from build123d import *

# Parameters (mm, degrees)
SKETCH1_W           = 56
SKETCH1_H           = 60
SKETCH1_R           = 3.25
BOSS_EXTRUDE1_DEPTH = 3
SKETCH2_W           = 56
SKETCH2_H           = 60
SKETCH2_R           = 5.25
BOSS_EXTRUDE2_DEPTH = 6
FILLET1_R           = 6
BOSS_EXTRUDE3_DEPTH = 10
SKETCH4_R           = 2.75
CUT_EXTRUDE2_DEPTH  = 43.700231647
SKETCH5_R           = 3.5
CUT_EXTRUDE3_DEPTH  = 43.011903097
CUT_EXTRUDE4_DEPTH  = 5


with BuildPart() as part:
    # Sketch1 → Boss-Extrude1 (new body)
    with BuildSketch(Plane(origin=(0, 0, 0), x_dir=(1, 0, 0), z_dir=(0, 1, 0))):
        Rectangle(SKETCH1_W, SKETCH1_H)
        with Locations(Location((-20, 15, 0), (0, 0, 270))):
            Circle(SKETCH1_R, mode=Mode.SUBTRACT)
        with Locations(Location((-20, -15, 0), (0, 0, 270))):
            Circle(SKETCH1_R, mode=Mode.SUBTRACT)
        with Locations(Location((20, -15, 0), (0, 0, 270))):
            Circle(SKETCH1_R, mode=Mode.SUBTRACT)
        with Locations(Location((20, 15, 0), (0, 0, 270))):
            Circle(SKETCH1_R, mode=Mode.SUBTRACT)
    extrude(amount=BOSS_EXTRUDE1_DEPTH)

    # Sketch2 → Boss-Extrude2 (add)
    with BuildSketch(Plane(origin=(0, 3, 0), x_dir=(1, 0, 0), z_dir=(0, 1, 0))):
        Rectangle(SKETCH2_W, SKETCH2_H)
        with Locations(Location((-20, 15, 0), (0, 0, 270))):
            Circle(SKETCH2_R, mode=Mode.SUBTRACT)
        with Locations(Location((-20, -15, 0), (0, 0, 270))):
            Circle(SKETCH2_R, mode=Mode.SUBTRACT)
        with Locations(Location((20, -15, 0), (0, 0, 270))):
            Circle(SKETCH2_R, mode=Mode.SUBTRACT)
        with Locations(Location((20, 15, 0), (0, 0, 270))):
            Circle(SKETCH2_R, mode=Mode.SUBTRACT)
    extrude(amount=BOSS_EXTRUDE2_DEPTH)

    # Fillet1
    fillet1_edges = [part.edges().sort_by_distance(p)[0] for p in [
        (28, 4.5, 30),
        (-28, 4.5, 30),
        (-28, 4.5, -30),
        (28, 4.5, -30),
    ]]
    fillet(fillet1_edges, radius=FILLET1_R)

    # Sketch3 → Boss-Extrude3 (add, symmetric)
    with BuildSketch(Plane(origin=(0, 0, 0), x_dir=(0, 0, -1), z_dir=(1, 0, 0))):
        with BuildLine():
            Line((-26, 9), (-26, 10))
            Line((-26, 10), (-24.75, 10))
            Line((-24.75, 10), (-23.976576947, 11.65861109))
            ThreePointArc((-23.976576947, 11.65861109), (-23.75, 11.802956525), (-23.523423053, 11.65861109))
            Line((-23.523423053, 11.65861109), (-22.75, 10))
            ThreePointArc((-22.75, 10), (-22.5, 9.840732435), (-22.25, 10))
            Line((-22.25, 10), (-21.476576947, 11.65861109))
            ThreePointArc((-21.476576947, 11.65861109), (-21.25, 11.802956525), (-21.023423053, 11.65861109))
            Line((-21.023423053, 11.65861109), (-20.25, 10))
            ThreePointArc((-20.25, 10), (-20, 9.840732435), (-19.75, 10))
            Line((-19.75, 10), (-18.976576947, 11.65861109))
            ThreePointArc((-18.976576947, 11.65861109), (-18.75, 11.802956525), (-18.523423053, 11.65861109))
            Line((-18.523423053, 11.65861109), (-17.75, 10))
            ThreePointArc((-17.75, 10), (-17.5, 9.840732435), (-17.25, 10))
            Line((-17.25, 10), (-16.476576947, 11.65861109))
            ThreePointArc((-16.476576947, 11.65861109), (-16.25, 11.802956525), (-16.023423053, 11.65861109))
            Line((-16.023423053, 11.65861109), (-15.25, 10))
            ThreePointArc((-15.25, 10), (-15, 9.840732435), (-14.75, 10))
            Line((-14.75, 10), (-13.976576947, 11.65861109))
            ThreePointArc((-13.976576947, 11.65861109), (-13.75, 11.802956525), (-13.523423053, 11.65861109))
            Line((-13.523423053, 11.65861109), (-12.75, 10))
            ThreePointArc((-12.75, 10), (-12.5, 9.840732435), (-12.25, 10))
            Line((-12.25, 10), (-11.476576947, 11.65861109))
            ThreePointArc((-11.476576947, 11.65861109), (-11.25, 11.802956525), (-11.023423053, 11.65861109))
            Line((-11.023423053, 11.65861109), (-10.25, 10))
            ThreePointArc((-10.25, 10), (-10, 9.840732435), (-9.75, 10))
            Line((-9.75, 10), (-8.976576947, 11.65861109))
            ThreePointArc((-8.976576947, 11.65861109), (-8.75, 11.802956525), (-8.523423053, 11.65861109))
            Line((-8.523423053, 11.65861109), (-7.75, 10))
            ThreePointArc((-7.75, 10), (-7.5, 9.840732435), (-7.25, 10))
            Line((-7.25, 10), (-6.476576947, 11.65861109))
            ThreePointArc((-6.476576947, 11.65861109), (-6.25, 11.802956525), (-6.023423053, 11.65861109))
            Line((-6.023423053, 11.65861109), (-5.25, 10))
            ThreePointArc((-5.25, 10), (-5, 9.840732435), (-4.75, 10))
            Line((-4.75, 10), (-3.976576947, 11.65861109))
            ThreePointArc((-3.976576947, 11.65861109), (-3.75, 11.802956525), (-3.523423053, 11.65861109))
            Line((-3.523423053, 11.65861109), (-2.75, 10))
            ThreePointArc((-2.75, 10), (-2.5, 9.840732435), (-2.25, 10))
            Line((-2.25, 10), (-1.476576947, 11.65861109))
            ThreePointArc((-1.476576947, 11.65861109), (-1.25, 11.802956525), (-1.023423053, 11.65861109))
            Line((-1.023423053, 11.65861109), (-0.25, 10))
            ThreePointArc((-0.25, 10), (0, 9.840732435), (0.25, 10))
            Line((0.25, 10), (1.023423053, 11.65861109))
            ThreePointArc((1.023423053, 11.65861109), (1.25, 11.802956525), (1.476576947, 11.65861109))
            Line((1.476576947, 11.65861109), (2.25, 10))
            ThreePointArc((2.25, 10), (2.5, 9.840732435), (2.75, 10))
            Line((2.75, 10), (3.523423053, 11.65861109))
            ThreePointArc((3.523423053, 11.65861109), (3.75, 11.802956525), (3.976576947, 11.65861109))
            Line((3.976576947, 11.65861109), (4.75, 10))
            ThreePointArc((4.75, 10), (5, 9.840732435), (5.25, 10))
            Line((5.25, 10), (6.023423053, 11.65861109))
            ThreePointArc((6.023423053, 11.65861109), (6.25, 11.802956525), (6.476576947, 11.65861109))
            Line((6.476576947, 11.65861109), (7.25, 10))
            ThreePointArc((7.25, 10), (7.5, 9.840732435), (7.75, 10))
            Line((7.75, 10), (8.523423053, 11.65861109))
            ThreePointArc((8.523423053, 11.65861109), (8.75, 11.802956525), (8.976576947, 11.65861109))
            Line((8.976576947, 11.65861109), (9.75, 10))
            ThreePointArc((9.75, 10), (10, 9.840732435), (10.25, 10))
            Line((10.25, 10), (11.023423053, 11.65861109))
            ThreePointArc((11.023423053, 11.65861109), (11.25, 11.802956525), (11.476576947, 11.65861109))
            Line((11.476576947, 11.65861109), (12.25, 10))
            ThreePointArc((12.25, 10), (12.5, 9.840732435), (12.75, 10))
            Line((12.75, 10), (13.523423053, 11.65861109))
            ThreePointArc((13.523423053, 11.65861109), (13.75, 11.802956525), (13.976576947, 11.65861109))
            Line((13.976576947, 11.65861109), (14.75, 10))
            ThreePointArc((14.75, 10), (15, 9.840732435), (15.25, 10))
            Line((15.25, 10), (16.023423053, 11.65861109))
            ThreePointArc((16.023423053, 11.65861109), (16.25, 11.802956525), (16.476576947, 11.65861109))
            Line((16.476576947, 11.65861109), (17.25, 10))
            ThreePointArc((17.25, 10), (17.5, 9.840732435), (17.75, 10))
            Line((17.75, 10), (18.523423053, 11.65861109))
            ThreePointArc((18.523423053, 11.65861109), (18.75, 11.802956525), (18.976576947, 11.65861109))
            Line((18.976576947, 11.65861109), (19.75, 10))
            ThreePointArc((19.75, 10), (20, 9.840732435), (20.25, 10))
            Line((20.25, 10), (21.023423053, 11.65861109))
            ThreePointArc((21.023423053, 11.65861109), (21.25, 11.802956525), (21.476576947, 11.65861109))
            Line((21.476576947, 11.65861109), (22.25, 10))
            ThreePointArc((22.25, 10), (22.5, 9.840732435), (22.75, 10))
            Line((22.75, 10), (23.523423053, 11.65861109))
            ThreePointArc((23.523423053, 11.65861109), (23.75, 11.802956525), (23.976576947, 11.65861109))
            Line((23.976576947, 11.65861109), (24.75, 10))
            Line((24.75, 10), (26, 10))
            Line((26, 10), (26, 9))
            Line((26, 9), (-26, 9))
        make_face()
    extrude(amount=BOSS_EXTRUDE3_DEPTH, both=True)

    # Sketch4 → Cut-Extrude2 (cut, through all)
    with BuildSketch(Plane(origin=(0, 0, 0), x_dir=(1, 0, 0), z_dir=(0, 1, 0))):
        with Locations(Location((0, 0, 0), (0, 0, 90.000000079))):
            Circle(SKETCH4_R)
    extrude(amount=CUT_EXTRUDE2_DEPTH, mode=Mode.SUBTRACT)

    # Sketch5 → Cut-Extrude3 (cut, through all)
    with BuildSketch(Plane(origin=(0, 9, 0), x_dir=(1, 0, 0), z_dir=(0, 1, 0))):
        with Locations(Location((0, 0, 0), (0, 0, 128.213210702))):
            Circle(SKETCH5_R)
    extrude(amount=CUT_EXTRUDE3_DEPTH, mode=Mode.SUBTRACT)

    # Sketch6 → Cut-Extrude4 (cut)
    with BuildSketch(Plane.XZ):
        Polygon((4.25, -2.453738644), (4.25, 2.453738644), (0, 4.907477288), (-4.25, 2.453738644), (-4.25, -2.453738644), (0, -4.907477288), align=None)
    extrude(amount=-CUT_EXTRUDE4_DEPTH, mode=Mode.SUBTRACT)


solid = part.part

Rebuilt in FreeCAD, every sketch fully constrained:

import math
import FreeCAD as App
import Part
import Sketcher
Q = App.Units.Quantity


def edges_at(feature, points):
    """Names of the edges that pass closest to the given points."""
    edges = feature.Shape.Edges
    near = lambda p: min(range(len(edges)), key=lambda i: edges[i].distToShape(Part.Vertex(*p))[0])
    return sorted({f"Edge{near(p) + 1}" for p in points})

doc = App.newDocument("Part")
params = doc.addObject("Spreadsheet::Sheet", "Params")
for row, (alias, value) in enumerate([
    ("sketch1_diameter", "6.5 mm"),
    ("sketch1_width", "56 mm"),
    ("sketch1_height", "60 mm"),
    ("pad1_length", "3 mm"),
    ("sketch2_diameter", "10.5 mm"),
    ("sketch2_width", "56 mm"),
    ("sketch2_height", "60 mm"),
    ("pad2_length", "6 mm"),
    ("fillet_radius", "6 mm"),
    ("sketch3_width", "1 mm"),
    ("sketch3_height", "52 mm"),
    ("sketch3_radius", "0.25 mm"),
    ("sketch3_height2", "1.25 mm"),
    ("pad3_length", "20 mm"),
    ("sketch4_diameter", "5.5 mm"),
    ("sketch5_diameter", "7 mm"),
    ("pocket3_length", "5 mm"),
], start=1):
    params.set(f"A{row}", alias)
    params.set(f"B{row}", "=" + value)
    params.setAlias(f"B{row}", alias)

body = doc.addObject("PartDesign::Body", "Body")

# Sketch on XZ plane
sketch1 = body.newObject("Sketcher::SketchObject", "Sketch")
sketch1.AttachmentSupport = (doc.getObject("XZ_Plane"), [""])
sketch1.MapMode = "FlatFace"
sketch1.addGeometry([
    Part.LineSegment(App.Vector(-28, -30, 0), App.Vector(-28, 30, 0)),  # 0
    Part.LineSegment(App.Vector(-28, 30, 0), App.Vector(28, 30, 0)),  # 1
    Part.LineSegment(App.Vector(28, 30, 0), App.Vector(28, -30, 0)),  # 2
    Part.LineSegment(App.Vector(28, -30, 0), App.Vector(-28, -30, 0)),  # 3
    Part.Circle(App.Vector(-20, 15, 0), App.Vector(0, 0, 1), 3.2),  # 4
    Part.Circle(App.Vector(20, 15, 0), App.Vector(0, 0, 1), 3.2),  # 5
    Part.Circle(App.Vector(-20, -15, 0), App.Vector(0, 0, 1), 3.2),  # 6
    Part.Circle(App.Vector(20, -15, 0), App.Vector(0, 0, 1), 3.2),  # 7
], False)
sketch1.addConstraint([
    Sketcher.Constraint("Coincident", 0, 2, 1, 1),
    Sketcher.Constraint("Coincident", 1, 2, 2, 1),
    Sketcher.Constraint("Coincident", 2, 2, 3, 1),
    Sketcher.Constraint("Coincident", 3, 2, 0, 1),
    Sketcher.Constraint("Vertical", 0),
    Sketcher.Constraint("Horizontal", 1),
    Sketcher.Constraint("Vertical", 2),
    Sketcher.Constraint("Horizontal", 3),
    Sketcher.Constraint("Equal", 4, 5),
    Sketcher.Constraint("Equal", 5, 6),
    Sketcher.Constraint("Equal", 6, 7),
    Sketcher.Constraint("Symmetric", 5, 3, 6, 3, -1, 1),
    Sketcher.Constraint("Symmetric", 4, 3, 7, 3, -1, 1),
    Sketcher.Constraint("Symmetric", 0, 2, 2, 2, -1, 1),
    Sketcher.Constraint("Symmetric", 4, 3, 5, 3, -2),
    Sketcher.Constraint("Diameter", 4, 6.5),
    Sketcher.Constraint("DistanceX", 1, 1, 1, 2, 56.0),
    Sketcher.Constraint("DistanceY", 0, 1, 0, 2, 60.0),
    Sketcher.Constraint("DistanceX", 4, 3, -1, 1, 20.0),
    Sketcher.Constraint("DistanceY", -1, 1, 4, 3, 15.0),
])
sketch1.setExpression("Constraints[15]", "Params.sketch1_diameter")
sketch1.setExpression("Constraints[16]", "Params.sketch1_width")
sketch1.setExpression("Constraints[17]", "Params.sketch1_height")
pad1 = body.newObject("PartDesign::Pad", "Pad")
pad1.Profile = sketch1
pad1.setExpression("Length", "Params.pad1_length")
pad1.Reversed = True

# Sketch on XZ plane
sketch2 = body.newObject("Sketcher::SketchObject", "Sketch001")
sketch2.AttachmentSupport = (doc.getObject("XZ_Plane"), [""])
sketch2.MapMode = "FlatFace"
sketch2.AttachmentOffset = App.Placement(App.Vector(0, 0, -3), App.Rotation())
sketch2.addGeometry([
    Part.LineSegment(App.Vector(-28, -30, 0), App.Vector(-28, 30, 0)),  # 0
    Part.LineSegment(App.Vector(-28, 30, 0), App.Vector(28, 30, 0)),  # 1
    Part.LineSegment(App.Vector(28, 30, 0), App.Vector(28, -30, 0)),  # 2
    Part.LineSegment(App.Vector(28, -30, 0), App.Vector(-28, -30, 0)),  # 3
    Part.Circle(App.Vector(-20, 15, 0), App.Vector(0, 0, 1), 5),  # 4
    Part.Circle(App.Vector(20, 15, 0), App.Vector(0, 0, 1), 5),  # 5
    Part.Circle(App.Vector(-20, -15, 0), App.Vector(0, 0, 1), 5),  # 6
    Part.Circle(App.Vector(20, -15, 0), App.Vector(0, 0, 1), 5),  # 7
], False)
sketch2.addConstraint([
    Sketcher.Constraint("Coincident", 0, 2, 1, 1),
    Sketcher.Constraint("Coincident", 1, 2, 2, 1),
    Sketcher.Constraint("Coincident", 2, 2, 3, 1),
    Sketcher.Constraint("Coincident", 3, 2, 0, 1),
    Sketcher.Constraint("Vertical", 0),
    Sketcher.Constraint("Horizontal", 1),
    Sketcher.Constraint("Vertical", 2),
    Sketcher.Constraint("Horizontal", 3),
    Sketcher.Constraint("Equal", 4, 5),
    Sketcher.Constraint("Equal", 5, 6),
    Sketcher.Constraint("Equal", 6, 7),
    Sketcher.Constraint("Symmetric", 5, 3, 6, 3, -1, 1),
    Sketcher.Constraint("Symmetric", 4, 3, 7, 3, -1, 1),
    Sketcher.Constraint("Symmetric", 0, 2, 2, 2, -1, 1),
    Sketcher.Constraint("Symmetric", 4, 3, 5, 3, -2),
    Sketcher.Constraint("Diameter", 4, 10.5),
    Sketcher.Constraint("DistanceX", 1, 1, 1, 2, 56.0),
    Sketcher.Constraint("DistanceY", 0, 1, 0, 2, 60.0),
    Sketcher.Constraint("DistanceX", 4, 3, -1, 1, 20.0),
    Sketcher.Constraint("DistanceY", -1, 1, 4, 3, 15.0),
])
sketch2.setExpression("Constraints[15]", "Params.sketch2_diameter")
sketch2.setExpression("Constraints[16]", "Params.sketch2_width")
sketch2.setExpression("Constraints[17]", "Params.sketch2_height")
pad2 = body.newObject("PartDesign::Pad", "Pad001")
pad2.Profile = sketch2
pad2.setExpression("Length", "Params.pad2_length")
pad2.Reversed = True
doc.recompute()

fillet = body.newObject("PartDesign::Fillet", "Fillet")
fillet.Base = (pad2, edges_at(pad2, [
    (28, 4.5, 30),
    (-28, 4.5, 30),
    (-28, 4.5, -30),
    (28, 4.5, -30),
]))
fillet.setExpression("Radius", "Params.fillet_radius")

# Sketch on YZ plane
sketch3 = body.newObject("Sketcher::SketchObject", "Sketch002")
sketch3.AttachmentSupport = (doc.getObject("YZ_Plane"), [""])
sketch3.MapMode = "FlatFace"
sketch3.addGeometry([
    Part.LineSegment(App.Vector(10, 26, 0), App.Vector(9, 26, 0)),  # 0
    Part.LineSegment(App.Vector(9, 26, 0), App.Vector(9, -26, 0)),  # 1
    Part.LineSegment(App.Vector(9, -26, 0), App.Vector(10, -26, 0)),  # 2
    Part.LineSegment(App.Vector(10, -26, 0), App.Vector(10, -24.75, 0)),  # 3
    Part.LineSegment(App.Vector(10, -24.75, 0), App.Vector(11.66, -23.98, 0)),  # 4
    Part.ArcOfCircle(Part.Circle(App.Vector(11.55, -23.75, 0), App.Vector(0, 0, 1), 0.25), math.radians(-65), math.radians(65)),  # 5
    Part.LineSegment(App.Vector(11.66, -23.52, 0), App.Vector(10, -22.75, 0)),  # 6
    Part.ArcOfCircle(Part.Circle(App.Vector(10.12, -22.5, 0), App.Vector(0, 0, 1), 0.28), math.radians(115), math.radians(245)),  # 7
    Part.LineSegment(App.Vector(10, -22.25, 0), App.Vector(11.66, -21.48, 0)),  # 8
    Part.ArcOfCircle(Part.Circle(App.Vector(11.55, -21.25, 0), App.Vector(0, 0, 1), 0.25), math.radians(-65), math.radians(65)),  # 9
    Part.LineSegment(App.Vector(11.66, -21.02, 0), App.Vector(10, -20.25, 0)),  # 10
    Part.ArcOfCircle(Part.Circle(App.Vector(10.12, -20, 0), App.Vector(0, 0, 1), 0.28), math.radians(115), math.radians(245)),  # 11
    Part.LineSegment(App.Vector(10, -19.75, 0), App.Vector(11.66, -18.98, 0)),  # 12
    Part.ArcOfCircle(Part.Circle(App.Vector(11.55, -18.75, 0), App.Vector(0, 0, 1), 0.25), math.radians(-65), math.radians(65)),  # 13
    Part.LineSegment(App.Vector(11.66, -18.52, 0), App.Vector(10, -17.75, 0)),  # 14
    Part.ArcOfCircle(Part.Circle(App.Vector(10.12, -17.5, 0), App.Vector(0, 0, 1), 0.28), math.radians(115), math.radians(245)),  # 15
    Part.LineSegment(App.Vector(10, -17.25, 0), App.Vector(11.66, -16.48, 0)),  # 16
    Part.ArcOfCircle(Part.Circle(App.Vector(11.55, -16.25, 0), App.Vector(0, 0, 1), 0.25), math.radians(-65), math.radians(65)),  # 17
    Part.LineSegment(App.Vector(11.66, -16.02, 0), App.Vector(10, -15.25, 0)),  # 18
    Part.ArcOfCircle(Part.Circle(App.Vector(10.12, -15, 0), App.Vector(0, 0, 1), 0.28), math.radians(115), math.radians(245)),  # 19
    Part.LineSegment(App.Vector(10, -14.75, 0), App.Vector(11.66, -13.98, 0)),  # 20
    Part.ArcOfCircle(Part.Circle(App.Vector(11.55, -13.75, 0), App.Vector(0, 0, 1), 0.25), math.radians(-65), math.radians(65)),  # 21
    Part.LineSegment(App.Vector(11.66, -13.52, 0), App.Vector(10, -12.75, 0)),  # 22
    Part.ArcOfCircle(Part.Circle(App.Vector(10.12, -12.5, 0), App.Vector(0, 0, 1), 0.28), math.radians(115), math.radians(245)),  # 23
    Part.LineSegment(App.Vector(10, -12.25, 0), App.Vector(11.66, -11.48, 0)),  # 24
    Part.ArcOfCircle(Part.Circle(App.Vector(11.55, -11.25, 0), App.Vector(0, 0, 1), 0.25), math.radians(-65), math.radians(65)),  # 25
    Part.LineSegment(App.Vector(11.66, -11.02, 0), App.Vector(10, -10.25, 0)),  # 26
    Part.ArcOfCircle(Part.Circle(App.Vector(10.12, -10, 0), App.Vector(0, 0, 1), 0.28), math.radians(115), math.radians(245)),  # 27
    Part.LineSegment(App.Vector(10, -9.75, 0), App.Vector(11.66, -8.98, 0)),  # 28
    Part.ArcOfCircle(Part.Circle(App.Vector(11.55, -8.75, 0), App.Vector(0, 0, 1), 0.25), math.radians(-65), math.radians(65)),  # 29
    Part.LineSegment(App.Vector(11.66, -8.52, 0), App.Vector(10, -7.75, 0)),  # 30
    Part.ArcOfCircle(Part.Circle(App.Vector(10.12, -7.5, 0), App.Vector(0, 0, 1), 0.28), math.radians(115), math.radians(245)),  # 31
    Part.LineSegment(App.Vector(10, -7.25, 0), App.Vector(11.66, -6.48, 0)),  # 32
    Part.ArcOfCircle(Part.Circle(App.Vector(11.55, -6.25, 0), App.Vector(0, 0, 1), 0.25), math.radians(-65), math.radians(65)),  # 33
    Part.LineSegment(App.Vector(11.66, -6.02, 0), App.Vector(10, -5.25, 0)),  # 34
    Part.ArcOfCircle(Part.Circle(App.Vector(10.12, -5, 0), App.Vector(0, 0, 1), 0.28), math.radians(115), math.radians(245)),  # 35
    Part.LineSegment(App.Vector(10, -4.75, 0), App.Vector(11.66, -3.98, 0)),  # 36
    Part.ArcOfCircle(Part.Circle(App.Vector(11.55, -3.75, 0), App.Vector(0, 0, 1), 0.25), math.radians(-65), math.radians(65)),  # 37
    Part.LineSegment(App.Vector(11.66, -3.52, 0), App.Vector(10, -2.75, 0)),  # 38
    Part.ArcOfCircle(Part.Circle(App.Vector(10.12, -2.5, 0), App.Vector(0, 0, 1), 0.28), math.radians(115), math.radians(245)),  # 39
    Part.LineSegment(App.Vector(10, -2.25, 0), App.Vector(11.66, -1.48, 0)),  # 40
    Part.ArcOfCircle(Part.Circle(App.Vector(11.55, -1.25, 0), App.Vector(0, 0, 1), 0.25), math.radians(-65), math.radians(65)),  # 41
    Part.LineSegment(App.Vector(11.66, -1.02, 0), App.Vector(10, -0.25, 0)),  # 42
    Part.ArcOfCircle(Part.Circle(App.Vector(10.12, 0, 0), App.Vector(0, 0, 1), 0.28), math.radians(115), math.radians(245)),  # 43
    Part.LineSegment(App.Vector(10, 0.25, 0), App.Vector(11.66, 1.02, 0)),  # 44
    Part.ArcOfCircle(Part.Circle(App.Vector(11.55, 1.25, 0), App.Vector(0, 0, 1), 0.25), math.radians(-65), math.radians(65)),  # 45
    Part.LineSegment(App.Vector(11.66, 1.48, 0), App.Vector(10, 2.25, 0)),  # 46
    Part.ArcOfCircle(Part.Circle(App.Vector(10.12, 2.5, 0), App.Vector(0, 0, 1), 0.28), math.radians(115), math.radians(245)),  # 47
    Part.LineSegment(App.Vector(10, 2.75, 0), App.Vector(11.66, 3.52, 0)),  # 48
    Part.ArcOfCircle(Part.Circle(App.Vector(11.55, 3.75, 0), App.Vector(0, 0, 1), 0.25), math.radians(-65), math.radians(65)),  # 49
    Part.LineSegment(App.Vector(11.66, 3.98, 0), App.Vector(10, 4.75, 0)),  # 50
    Part.ArcOfCircle(Part.Circle(App.Vector(10.12, 5, 0), App.Vector(0, 0, 1), 0.28), math.radians(115), math.radians(245)),  # 51
    Part.LineSegment(App.Vector(10, 5.25, 0), App.Vector(11.66, 6.02, 0)),  # 52
    Part.ArcOfCircle(Part.Circle(App.Vector(11.55, 6.25, 0), App.Vector(0, 0, 1), 0.25), math.radians(-65), math.radians(65)),  # 53
    Part.LineSegment(App.Vector(11.66, 6.48, 0), App.Vector(10, 7.25, 0)),  # 54
    Part.ArcOfCircle(Part.Circle(App.Vector(10.12, 7.5, 0), App.Vector(0, 0, 1), 0.28), math.radians(115), math.radians(245)),  # 55
    Part.LineSegment(App.Vector(10, 7.75, 0), App.Vector(11.66, 8.52, 0)),  # 56
    Part.ArcOfCircle(Part.Circle(App.Vector(11.55, 8.75, 0), App.Vector(0, 0, 1), 0.25), math.radians(-65), math.radians(65)),  # 57
    Part.LineSegment(App.Vector(11.66, 8.98, 0), App.Vector(10, 9.75, 0)),  # 58
    Part.ArcOfCircle(Part.Circle(App.Vector(10.12, 10, 0), App.Vector(0, 0, 1), 0.28), math.radians(115), math.radians(245)),  # 59
    Part.LineSegment(App.Vector(10, 10.25, 0), App.Vector(11.66, 11.02, 0)),  # 60
    Part.ArcOfCircle(Part.Circle(App.Vector(11.55, 11.25, 0), App.Vector(0, 0, 1), 0.25), math.radians(-65), math.radians(65)),  # 61
    Part.LineSegment(App.Vector(11.66, 11.48, 0), App.Vector(10, 12.25, 0)),  # 62
    Part.ArcOfCircle(Part.Circle(App.Vector(10.12, 12.5, 0), App.Vector(0, 0, 1), 0.28), math.radians(115), math.radians(245)),  # 63
    Part.LineSegment(App.Vector(10, 12.75, 0), App.Vector(11.66, 13.52, 0)),  # 64
    Part.ArcOfCircle(Part.Circle(App.Vector(11.55, 13.75, 0), App.Vector(0, 0, 1), 0.25), math.radians(-65), math.radians(65)),  # 65
    Part.LineSegment(App.Vector(11.66, 13.98, 0), App.Vector(10, 14.75, 0)),  # 66
    Part.ArcOfCircle(Part.Circle(App.Vector(10.12, 15, 0), App.Vector(0, 0, 1), 0.28), math.radians(115), math.radians(245)),  # 67
    Part.LineSegment(App.Vector(10, 15.25, 0), App.Vector(11.66, 16.02, 0)),  # 68
    Part.ArcOfCircle(Part.Circle(App.Vector(11.55, 16.25, 0), App.Vector(0, 0, 1), 0.25), math.radians(-65), math.radians(65)),  # 69
    Part.LineSegment(App.Vector(11.66, 16.48, 0), App.Vector(10, 17.25, 0)),  # 70
    Part.ArcOfCircle(Part.Circle(App.Vector(10.12, 17.5, 0), App.Vector(0, 0, 1), 0.28), math.radians(115), math.radians(245)),  # 71
    Part.LineSegment(App.Vector(10, 17.75, 0), App.Vector(11.66, 18.52, 0)),  # 72
    Part.ArcOfCircle(Part.Circle(App.Vector(11.55, 18.75, 0), App.Vector(0, 0, 1), 0.25), math.radians(-65), math.radians(65)),  # 73
    Part.LineSegment(App.Vector(11.66, 18.98, 0), App.Vector(10, 19.75, 0)),  # 74
    Part.ArcOfCircle(Part.Circle(App.Vector(10.12, 20, 0), App.Vector(0, 0, 1), 0.28), math.radians(115), math.radians(245)),  # 75
    Part.LineSegment(App.Vector(10, 20.25, 0), App.Vector(11.66, 21.02, 0)),  # 76
    Part.ArcOfCircle(Part.Circle(App.Vector(11.55, 21.25, 0), App.Vector(0, 0, 1), 0.25), math.radians(-65), math.radians(65)),  # 77
    Part.LineSegment(App.Vector(11.66, 21.48, 0), App.Vector(10, 22.25, 0)),  # 78
    Part.ArcOfCircle(Part.Circle(App.Vector(10.12, 22.5, 0), App.Vector(0, 0, 1), 0.28), math.radians(115), math.radians(245)),  # 79
    Part.LineSegment(App.Vector(10, 22.75, 0), App.Vector(11.66, 23.52, 0)),  # 80
    Part.ArcOfCircle(Part.Circle(App.Vector(11.55, 23.75, 0), App.Vector(0, 0, 1), 0.25), math.radians(-65), math.radians(65)),  # 81
    Part.LineSegment(App.Vector(11.66, 23.98, 0), App.Vector(10, 24.75, 0)),  # 82
    Part.LineSegment(App.Vector(10, 24.75, 0), App.Vector(10, 26, 0)),  # 83
], False)
sketch3.addConstraint([
    Sketcher.Constraint("Coincident", 0, 2, 1, 1),
    Sketcher.Constraint("Coincident", 1, 2, 2, 1),
    Sketcher.Constraint("Coincident", 2, 2, 3, 1),
    Sketcher.Constraint("Coincident", 3, 2, 4, 1),
    Sketcher.Constraint("Tangent", 4, 2, 5, 1),
    Sketcher.Constraint("Tangent", 5, 2, 6, 1),
    Sketcher.Constraint("Tangent", 6, 2, 7, 2),
    Sketcher.Constraint("Tangent", 7, 1, 8, 1),
    Sketcher.Constraint("Tangent", 8, 2, 9, 1),
    Sketcher.Constraint("Tangent", 9, 2, 10, 1),
    Sketcher.Constraint("Tangent", 10, 2, 11, 2),
    Sketcher.Constraint("Tangent", 11, 1, 12, 1),
    Sketcher.Constraint("Tangent", 12, 2, 13, 1),
    Sketcher.Constraint("Tangent", 13, 2, 14, 1),
    Sketcher.Constraint("Tangent", 14, 2, 15, 2),
    Sketcher.Constraint("Tangent", 15, 1, 16, 1),
    Sketcher.Constraint("Tangent", 16, 2, 17, 1),
    Sketcher.Constraint("Tangent", 17, 2, 18, 1),
    Sketcher.Constraint("Tangent", 18, 2, 19, 2),
    Sketcher.Constraint("Tangent", 19, 1, 20, 1),
    Sketcher.Constraint("Tangent", 20, 2, 21, 1),
    Sketcher.Constraint("Tangent", 21, 2, 22, 1),
    Sketcher.Constraint("Tangent", 22, 2, 23, 2),
    Sketcher.Constraint("Tangent", 23, 1, 24, 1),
    Sketcher.Constraint("Tangent", 24, 2, 25, 1),
    Sketcher.Constraint("Tangent", 25, 2, 26, 1),
    Sketcher.Constraint("Tangent", 26, 2, 27, 2),
    Sketcher.Constraint("Tangent", 27, 1, 28, 1),
    Sketcher.Constraint("Tangent", 28, 2, 29, 1),
    Sketcher.Constraint("Tangent", 29, 2, 30, 1),
    Sketcher.Constraint("Tangent", 30, 2, 31, 2),
    Sketcher.Constraint("Tangent", 31, 1, 32, 1),
    Sketcher.Constraint("Tangent", 32, 2, 33, 1),
    Sketcher.Constraint("Tangent", 33, 2, 34, 1),
    Sketcher.Constraint("Tangent", 34, 2, 35, 2),
    Sketcher.Constraint("Tangent", 35, 1, 36, 1),
    Sketcher.Constraint("Tangent", 36, 2, 37, 1),
    Sketcher.Constraint("Tangent", 37, 2, 38, 1),
    Sketcher.Constraint("Tangent", 38, 2, 39, 2),
    Sketcher.Constraint("Tangent", 39, 1, 40, 1),
    Sketcher.Constraint("Tangent", 40, 2, 41, 1),
    Sketcher.Constraint("Tangent", 41, 2, 42, 1),
    Sketcher.Constraint("Tangent", 42, 2, 43, 2),
    Sketcher.Constraint("Tangent", 43, 1, 44, 1),
    Sketcher.Constraint("Tangent", 44, 2, 45, 1),
    Sketcher.Constraint("Tangent", 45, 2, 46, 1),
    Sketcher.Constraint("Tangent", 46, 2, 47, 2),
    Sketcher.Constraint("Tangent", 47, 1, 48, 1),
    Sketcher.Constraint("Tangent", 48, 2, 49, 1),
    Sketcher.Constraint("Tangent", 49, 2, 50, 1),
    Sketcher.Constraint("Tangent", 50, 2, 51, 2),
    Sketcher.Constraint("Tangent", 51, 1, 52, 1),
    Sketcher.Constraint("Tangent", 52, 2, 53, 1),
    Sketcher.Constraint("Tangent", 53, 2, 54, 1),
    Sketcher.Constraint("Tangent", 54, 2, 55, 2),
    Sketcher.Constraint("Tangent", 55, 1, 56, 1),
    Sketcher.Constraint("Tangent", 56, 2, 57, 1),
    Sketcher.Constraint("Tangent", 57, 2, 58, 1),
    Sketcher.Constraint("Tangent", 58, 2, 59, 2),
    Sketcher.Constraint("Tangent", 59, 1, 60, 1),
    Sketcher.Constraint("Tangent", 60, 2, 61, 1),
    Sketcher.Constraint("Tangent", 61, 2, 62, 1),
    Sketcher.Constraint("Tangent", 62, 2, 63, 2),
    Sketcher.Constraint("Tangent", 63, 1, 64, 1),
    Sketcher.Constraint("Tangent", 64, 2, 65, 1),
    Sketcher.Constraint("Tangent", 65, 2, 66, 1),
    Sketcher.Constraint("Tangent", 66, 2, 67, 2),
    Sketcher.Constraint("Tangent", 67, 1, 68, 1),
    Sketcher.Constraint("Tangent", 68, 2, 69, 1),
    Sketcher.Constraint("Tangent", 69, 2, 70, 1),
    Sketcher.Constraint("Tangent", 70, 2, 71, 2),
    Sketcher.Constraint("Tangent", 71, 1, 72, 1),
    Sketcher.Constraint("Tangent", 72, 2, 73, 1),
    Sketcher.Constraint("Tangent", 73, 2, 74, 1),
    Sketcher.Constraint("Tangent", 74, 2, 75, 2),
    Sketcher.Constraint("Tangent", 75, 1, 76, 1),
    Sketcher.Constraint("Tangent", 76, 2, 77, 1),
    Sketcher.Constraint("Tangent", 77, 2, 78, 1),
    Sketcher.Constraint("Tangent", 78, 2, 79, 2),
    Sketcher.Constraint("Tangent", 79, 1, 80, 1),
    Sketcher.Constraint("Tangent", 80, 2, 81, 1),
    Sketcher.Constraint("Tangent", 81, 2, 82, 1),
    Sketcher.Constraint("Coincident", 82, 2, 83, 1),
    Sketcher.Constraint("Coincident", 83, 2, 0, 1),
    Sketcher.Constraint("Horizontal", 0),
    Sketcher.Constraint("Vertical", 1),
    Sketcher.Constraint("Horizontal", 2),
    Sketcher.Constraint("Vertical", 3),
    Sketcher.Constraint("Vertical", 83),
    Sketcher.Constraint("Equal", 5, 9),
    Sketcher.Constraint("Equal", 7, 11),
    Sketcher.Constraint("Equal", 9, 13),
    Sketcher.Constraint("Equal", 11, 15),
    Sketcher.Constraint("Equal", 13, 17),
    Sketcher.Constraint("Equal", 15, 19),
    Sketcher.Constraint("Equal", 17, 21),
    Sketcher.Constraint("Equal", 19, 23),
    Sketcher.Constraint("Equal", 21, 25),
    Sketcher.Constraint("Equal", 23, 27),
    Sketcher.Constraint("Equal", 25, 29),
    Sketcher.Constraint("Equal", 27, 31),
    Sketcher.Constraint("Equal", 29, 33),
    Sketcher.Constraint("Equal", 31, 35),
    Sketcher.Constraint("Equal", 33, 37),
    Sketcher.Constraint("Equal", 35, 39),
    Sketcher.Constraint("Equal", 37, 41),
    Sketcher.Constraint("Equal", 39, 43),
    Sketcher.Constraint("Equal", 41, 45),
    Sketcher.Constraint("Equal", 43, 47),
    Sketcher.Constraint("Equal", 45, 49),
    Sketcher.Constraint("Equal", 47, 51),
    Sketcher.Constraint("Equal", 49, 53),
    Sketcher.Constraint("Equal", 51, 55),
    Sketcher.Constraint("Equal", 53, 57),
    Sketcher.Constraint("Equal", 55, 59),
    Sketcher.Constraint("Equal", 57, 61),
    Sketcher.Constraint("Equal", 59, 63),
    Sketcher.Constraint("Equal", 61, 65),
    Sketcher.Constraint("Equal", 63, 67),
    Sketcher.Constraint("Equal", 65, 69),
    Sketcher.Constraint("Equal", 67, 71),
    Sketcher.Constraint("Equal", 69, 73),
    Sketcher.Constraint("Equal", 71, 75),
    Sketcher.Constraint("Equal", 73, 77),
    Sketcher.Constraint("Equal", 75, 79),
    Sketcher.Constraint("Equal", 77, 81),
    Sketcher.Constraint("Symmetric", 41, 3, 45, 3, -1),
    Sketcher.Constraint("Symmetric", 39, 3, 47, 3, -1),
    Sketcher.Constraint("Symmetric", 37, 3, 49, 3, -1),
    Sketcher.Constraint("Symmetric", 35, 3, 51, 3, -1),
    Sketcher.Constraint("Symmetric", 33, 3, 53, 3, -1),
    Sketcher.Constraint("Symmetric", 31, 3, 55, 3, -1),
    Sketcher.Constraint("Symmetric", 29, 3, 57, 3, -1),
    Sketcher.Constraint("Symmetric", 27, 3, 59, 3, -1),
    Sketcher.Constraint("Symmetric", 25, 3, 61, 3, -1),
    Sketcher.Constraint("Symmetric", 23, 3, 63, 3, -1),
    Sketcher.Constraint("Symmetric", 21, 3, 65, 3, -1),
    Sketcher.Constraint("Symmetric", 19, 3, 67, 3, -1),
    Sketcher.Constraint("Symmetric", 17, 3, 69, 3, -1),
    Sketcher.Constraint("Symmetric", 15, 3, 71, 3, -1),
    Sketcher.Constraint("Symmetric", 13, 3, 73, 3, -1),
    Sketcher.Constraint("Symmetric", 11, 3, 75, 3, -1),
    Sketcher.Constraint("Symmetric", 9, 3, 77, 3, -1),
    Sketcher.Constraint("Symmetric", 7, 3, 79, 3, -1),
    Sketcher.Constraint("Symmetric", 5, 3, 81, 3, -1),
    Sketcher.Constraint("Symmetric", 3, 2, 82, 2, -1),
    Sketcher.Constraint("PointOnObject", 43, 3, -1),
    Sketcher.Constraint("Parallel", 4, 8),
    Sketcher.Constraint("Parallel", 6, 10),
    Sketcher.Constraint("Parallel", 8, 12),
    Sketcher.Constraint("Parallel", 10, 14),
    Sketcher.Constraint("Parallel", 12, 16),
    Sketcher.Constraint("Parallel", 14, 18),
    Sketcher.Constraint("Parallel", 16, 20),
    Sketcher.Constraint("Parallel", 18, 22),
    Sketcher.Constraint("Parallel", 20, 24),
    Sketcher.Constraint("Parallel", 22, 26),
    Sketcher.Constraint("Parallel", 24, 28),
    Sketcher.Constraint("Parallel", 26, 30),
    Sketcher.Constraint("Parallel", 28, 32),
    Sketcher.Constraint("Parallel", 30, 34),
    Sketcher.Constraint("Parallel", 32, 36),
    Sketcher.Constraint("Parallel", 34, 38),
    Sketcher.Constraint("Parallel", 36, 40),
    Sketcher.Constraint("Parallel", 38, 42),
    Sketcher.Constraint("Parallel", 40, 44),
    Sketcher.Constraint("Vertical", 5, 3, 9, 3),
    Sketcher.Constraint("Vertical", 7, 3, 11, 3),
    Sketcher.Constraint("Vertical", 9, 3, 13, 3),
    Sketcher.Constraint("Vertical", 11, 3, 15, 3),
    Sketcher.Constraint("Vertical", 13, 3, 17, 3),
    Sketcher.Constraint("Vertical", 15, 3, 19, 3),
    Sketcher.Constraint("Vertical", 17, 3, 21, 3),
    Sketcher.Constraint("Vertical", 19, 3, 23, 3),
    Sketcher.Constraint("Vertical", 21, 3, 25, 3),
    Sketcher.Constraint("Vertical", 23, 3, 27, 3),
    Sketcher.Constraint("Vertical", 25, 3, 29, 3),
    Sketcher.Constraint("Vertical", 27, 3, 31, 3),
    Sketcher.Constraint("Vertical", 29, 3, 33, 3),
    Sketcher.Constraint("Vertical", 31, 3, 35, 3),
    Sketcher.Constraint("Vertical", 33, 3, 37, 3),
    Sketcher.Constraint("Vertical", 35, 3, 39, 3),
    Sketcher.Constraint("Vertical", 37, 3, 41, 3),
    Sketcher.Constraint("Vertical", 39, 3, 43, 3),
    Sketcher.Constraint("Vertical", 3, 2, 6, 2),
    Sketcher.Constraint("Equal", 3, 83),
    Sketcher.Constraint("DistanceX", 0, 2, 0, 1, 1.0),
    Sketcher.Constraint("DistanceY", 1, 2, 1, 1, 52.0),
    Sketcher.Constraint("Angle", 4, Q("25 deg")),
    Sketcher.Constraint("Radius", 5, 0.25),
    Sketcher.Constraint("DistanceY", 11, 3, -1, 1, 20.0),
    Sketcher.Constraint("DistanceX", -1, 1, 0, 2, 9.0),
    Sketcher.Constraint("DistanceY", 3, 1, 3, 2, 1.25),
])
sketch3.setExpression("Constraints[186]", "Params.sketch3_width")
sketch3.setExpression("Constraints[187]", "Params.sketch3_height")
sketch3.setExpression("Constraints[189]", "Params.sketch3_radius")
sketch3.setExpression("Constraints[192]", "Params.sketch3_height2")
pad3 = body.newObject("PartDesign::Pad", "Pad002")
pad3.Profile = sketch3
pad3.setExpression("Length", "Params.pad3_length")
pad3.Midplane = True

# Sketch on XZ plane
sketch4 = body.newObject("Sketcher::SketchObject", "Sketch003")
sketch4.AttachmentSupport = (doc.getObject("XZ_Plane"), [""])
sketch4.MapMode = "FlatFace"
sketch4.addGeometry(Part.Circle(App.Vector(0, 0, 0), App.Vector(0, 0, 1), 2.8), False)
sketch4.addConstraint([
    Sketcher.Constraint("Coincident", 0, 3, -1, 1),
    Sketcher.Constraint("Diameter", 0, 5.5),
])
sketch4.setExpression("Constraints[1]", "Params.sketch4_diameter")
pocket1 = body.newObject("PartDesign::Pocket", "Pocket")
pocket1.Profile = sketch4
pocket1.Type = "ThroughAll"

# Sketch on XZ plane
sketch5 = body.newObject("Sketcher::SketchObject", "Sketch004")
sketch5.AttachmentSupport = (doc.getObject("XZ_Plane"), [""])
sketch5.MapMode = "FlatFace"
sketch5.AttachmentOffset = App.Placement(App.Vector(0, 0, -9), App.Rotation())
sketch5.addGeometry(Part.Circle(App.Vector(0, 0, 0), App.Vector(0, 0, 1), 3.5), False)
sketch5.addConstraint([
    Sketcher.Constraint("Coincident", 0, 3, -1, 1),
    Sketcher.Constraint("Diameter", 0, 7.0),
])
sketch5.setExpression("Constraints[1]", "Params.sketch5_diameter")
pocket2 = body.newObject("PartDesign::Pocket", "Pocket001")
pocket2.Profile = sketch5
pocket2.Type = "ThroughAll"

# Sketch on XZ plane
sketch6 = body.newObject("Sketcher::SketchObject", "Sketch005")
sketch6.AttachmentSupport = (doc.getObject("XZ_Plane"), [""])
sketch6.MapMode = "FlatFace"
sketch6.addGeometry([
    Part.LineSegment(App.Vector(4.2, -2.5, 0), App.Vector(4.2, 2.5, 0)),  # 0
    Part.LineSegment(App.Vector(4.2, 2.5, 0), App.Vector(0, 4.9, 0)),  # 1
    Part.LineSegment(App.Vector(0, 4.9, 0), App.Vector(-4.2, 2.5, 0)),  # 2
    Part.LineSegment(App.Vector(-4.2, 2.5, 0), App.Vector(-4.2, -2.5, 0)),  # 3
    Part.LineSegment(App.Vector(-4.2, -2.5, 0), App.Vector(0, -4.9, 0)),  # 4
    Part.LineSegment(App.Vector(0, -4.9, 0), App.Vector(4.2, -2.5, 0)),  # 5
], False)
sketch6.addConstraint([
    Sketcher.Constraint("Coincident", 0, 2, 1, 1),
    Sketcher.Constraint("Coincident", 1, 2, 2, 1),
    Sketcher.Constraint("Coincident", 2, 2, 3, 1),
    Sketcher.Constraint("Coincident", 3, 2, 4, 1),
    Sketcher.Constraint("Coincident", 4, 2, 5, 1),
    Sketcher.Constraint("Coincident", 5, 2, 0, 1),
    Sketcher.Constraint("Vertical", 0),
    Sketcher.Constraint("Vertical", 3),
    Sketcher.Constraint("Symmetric", 0, 2, 3, 2, -1, 1),
    Sketcher.Constraint("Symmetric", 1, 2, 4, 2, -1, 1),
    Sketcher.Constraint("PointOnObject", 1, 2, -2),
    Sketcher.Constraint("Parallel", 2, 5),
    Sketcher.Constraint("Horizontal", 0, 2, 2, 2),
    Sketcher.Constraint("Angle", 1, Q("150 deg")),
    Sketcher.Constraint("DistanceX", 2, 2, 0, 2, 8.5),
    Sketcher.Constraint("DistanceY", 0, 1, 0, 2, 4.907477),
])
pocket3 = body.newObject("PartDesign::Pocket", "Pocket002")
pocket3.Profile = sketch6
pocket3.setExpression("Length", "Params.pocket3_length")

doc.recompute()
